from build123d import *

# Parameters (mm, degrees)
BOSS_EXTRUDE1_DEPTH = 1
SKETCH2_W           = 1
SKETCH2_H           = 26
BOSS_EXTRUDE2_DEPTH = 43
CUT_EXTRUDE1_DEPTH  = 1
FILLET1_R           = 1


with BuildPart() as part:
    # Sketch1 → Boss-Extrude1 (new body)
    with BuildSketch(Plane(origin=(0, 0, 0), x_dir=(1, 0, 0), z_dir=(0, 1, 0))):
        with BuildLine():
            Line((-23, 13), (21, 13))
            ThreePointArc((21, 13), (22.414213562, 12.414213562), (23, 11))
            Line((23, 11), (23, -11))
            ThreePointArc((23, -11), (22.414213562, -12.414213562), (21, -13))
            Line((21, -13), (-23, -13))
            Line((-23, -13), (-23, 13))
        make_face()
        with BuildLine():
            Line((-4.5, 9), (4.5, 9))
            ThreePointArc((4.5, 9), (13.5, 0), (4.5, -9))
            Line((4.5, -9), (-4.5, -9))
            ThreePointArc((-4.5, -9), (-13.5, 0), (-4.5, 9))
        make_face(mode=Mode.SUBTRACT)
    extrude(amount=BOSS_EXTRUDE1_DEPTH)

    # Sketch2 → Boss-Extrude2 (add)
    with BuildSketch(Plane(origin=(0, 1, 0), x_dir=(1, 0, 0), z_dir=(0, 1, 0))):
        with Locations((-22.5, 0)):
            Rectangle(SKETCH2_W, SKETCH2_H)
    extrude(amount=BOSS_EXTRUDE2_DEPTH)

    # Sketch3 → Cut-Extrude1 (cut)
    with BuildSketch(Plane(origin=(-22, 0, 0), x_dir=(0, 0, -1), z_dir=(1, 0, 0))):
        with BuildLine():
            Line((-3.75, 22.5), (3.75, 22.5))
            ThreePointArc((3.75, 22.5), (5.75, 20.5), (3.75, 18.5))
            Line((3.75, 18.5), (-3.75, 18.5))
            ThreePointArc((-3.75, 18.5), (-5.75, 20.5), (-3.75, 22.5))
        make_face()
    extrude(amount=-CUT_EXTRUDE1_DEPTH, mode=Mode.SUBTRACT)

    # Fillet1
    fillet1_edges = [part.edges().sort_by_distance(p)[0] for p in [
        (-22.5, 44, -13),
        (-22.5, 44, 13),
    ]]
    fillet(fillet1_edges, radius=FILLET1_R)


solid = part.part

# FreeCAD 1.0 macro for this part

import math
import FreeCAD as App
import Part
import Sketcher

V = App.Vector
Q = App.Units.Quantity


def edges_at(feature, points):
    """Names of the edges that pass closest to the given points."""
    edges = feature.Shape.Edges
    near = lambda p: min(range(len(edges)), key=lambda i: edges[i].distToShape(Part.Vertex(*p))[0])
    return sorted({f"Edge{near(p) + 1}" for p in points})


def add_polygon(sketch, points):
    """Adds a closed chain of lines whose ends are joined by coincident constraints."""
    first, n = sketch.GeometryCount, len(points)
    for a, b in zip(points, points[1:] + points[:1]):
        sketch.addGeometry(Part.LineSegment(App.Vector(*a, 0), App.Vector(*b, 0)), False)
    for i in range(n):
        sketch.addConstraint(Sketcher.Constraint("Coincident", first + i, 2, first + (i + 1) % n, 1))

doc = App.newDocument("Part")
body = doc.addObject("PartDesign::Body", "Body")

# Sketch on XZ plane
sketch1 = body.newObject("Sketcher::SketchObject", "Sketch")
sketch1.AttachmentSupport = (doc.getObject("XZ_Plane"), [""])
sketch1.MapMode = "FlatFace"
sketch1.addGeometry([
    Part.LineSegment(V(21, -13, 0), V(-23, -13, 0)),  # 0
    Part.LineSegment(V(-23, -13, 0), V(-23, 13, 0)),  # 1
    Part.LineSegment(V(-23, 13, 0), V(21, 13, 0)),  # 2
    Part.ArcOfCircle(Part.Circle(V(21, 11, 0), V(0, 0, 1), 2), math.radians(0), math.radians(90)),  # 3
    Part.LineSegment(V(23, 11, 0), V(23, -11, 0)),  # 4
    Part.ArcOfCircle(Part.Circle(V(21, -11, 0), V(0, 0, 1), 2), math.radians(-90), math.radians(0)),  # 5
    Part.LineSegment(V(-4.5, -9, 0), V(4.5, -9, 0)),  # 6
    Part.ArcOfCircle(Part.Circle(V(4.5, 0, 0), V(0, 0, 1), 9), math.radians(-90), math.radians(90)),  # 7
    Part.LineSegment(V(4.5, 9, 0), V(-4.5, 9, 0)),  # 8
    Part.ArcOfCircle(Part.Circle(V(-4.5, 0, 0), V(0, 0, 1), 9), math.radians(90), math.radians(270)),  # 9
], False)
sketch1.addConstraint([
    Sketcher.Constraint("Coincident", 0, 2, 1, 1),
    Sketcher.Constraint("Coincident", 1, 2, 2, 1),
    Sketcher.Constraint("Tangent", 2, 2, 3, 2),
    Sketcher.Constraint("Tangent", 3, 1, 4, 1),
    Sketcher.Constraint("Tangent", 4, 2, 5, 2),
    Sketcher.Constraint("Tangent", 5, 1, 0, 1),
    Sketcher.Constraint("Tangent", 6, 2, 7, 1),
    Sketcher.Constraint("Tangent", 7, 2, 8, 1),
    Sketcher.Constraint("Tangent", 8, 2, 9, 1),
    Sketcher.Constraint("Tangent", 9, 2, 6, 1),
    Sketcher.Constraint("Horizontal", 0),
    Sketcher.Constraint("Vertical", 1),
    Sketcher.Constraint("Horizontal", 2),
    Sketcher.Constraint("Vertical", 4),
    Sketcher.Constraint("Horizontal", 6),
    Sketcher.Constraint("Horizontal", 8),
    Sketcher.Constraint("Equal", 3, 5),
    Sketcher.Constraint("Symmetric", 7, 3, 9, 3, -1, 1),
    Sketcher.Constraint("Radius", 3, Q("2 mm")),
    Sketcher.Constraint("Radius", 7, Q("9 mm")),
    Sketcher.Constraint("DistanceX", 0, 2, 0, 1, Q("44 mm")),
    Sketcher.Constraint("DistanceX", 6, 1, 6, 2, Q("9 mm")),
    Sketcher.Constraint("DistanceY", 1, 1, 1, 2, Q("26 mm")),
    Sketcher.Constraint("DistanceX", -1, 1, 3, 3, Q("21 mm")),
    Sketcher.Constraint("DistanceY", -1, 1, 3, 3, Q("11 mm")),
])
pad1 = body.newObject("PartDesign::Pad", "Pad")
pad1.Profile = sketch1
pad1.Length = 1
pad1.Reversed = True

# Sketch on XZ plane
sketch2 = body.newObject("Sketcher::SketchObject", "Sketch001")
sketch2.AttachmentSupport = (doc.getObject("XZ_Plane"), [""])
sketch2.MapMode = "FlatFace"
sketch2.AttachmentOffset = App.Placement(V(0, 0, -1), App.Rotation())
add_polygon(sketch2, [(-23, -13), (-23, 13), (-22, 13), (-22, -13)])  # lines 0-3
sketch2.addConstraint([
    Sketcher.Constraint("Vertical", 0),
    Sketcher.Constraint("Horizontal", 1),
    Sketcher.Constraint("Vertical", 2),
    Sketcher.Constraint("Horizontal", 3),
    Sketcher.Constraint("DistanceX", 1, 1, 1, 2, Q("1 mm")),
    Sketcher.Constraint("DistanceY", 0, 1, 0, 2, Q("26 mm")),
    Sketcher.Constraint("DistanceX", 0, 2, -1, 1, Q("23 mm")),
    Sketcher.Constraint("DistanceY", -1, 1, 0, 2, Q("13 mm")),
])
pad2 = body.newObject("PartDesign::Pad", "Pad001")
pad2.Profile = sketch2
pad2.Length = 43
pad2.Reversed = True

# Sketch on YZ plane
sketch3 = body.newObject("Sketcher::SketchObject", "Sketch002")
sketch3.AttachmentSupport = (doc.getObject("YZ_Plane"), [""])
sketch3.MapMode = "FlatFace"
sketch3.AttachmentOffset = App.Placement(V(0, 0, -22), App.Rotation())
sketch3.addGeometry([
    Part.LineSegment(V(22.5, -3.8, 0), V(22.5, 3.8, 0)),
    Part.ArcOfCircle(Part.Circle(V(20.5, 3.8, 0), V(0, 0, 1), 2), math.radians(0), math.radians(180)),
    Part.LineSegment(V(18.5, 3.8, 0), V(18.5, -3.8, 0)),
    Part.ArcOfCircle(Part.Circle(V(20.5, -3.8, 0), V(0, 0, 1), 2), math.radians(180), math.radians(360)),
], False)
sketch3.addConstraint([
    Sketcher.Constraint("Tangent", 0, 2, 1, 1),
    Sketcher.Constraint("Tangent", 1, 2, 2, 1),
    Sketcher.Constraint("Tangent", 2, 2, 3, 1),
    Sketcher.Constraint("Tangent", 3, 2, 0, 1),
    Sketcher.Constraint("Vertical", 0),
    Sketcher.Constraint("Vertical", 2),
    Sketcher.Constraint("Radius", 1, Q("2 mm")),
    Sketcher.Constraint("DistanceY", 0, 1, 0, 2, Q("7.5 mm")),
    Sketcher.Constraint("DistanceX", -1, 1, 1, 3, Q("20.5 mm")),
    Sketcher.Constraint("DistanceY", -1, 1, 1, 3, Q("3.75 mm")),
])
pocket1 = body.newObject("PartDesign::Pocket", "Pocket")
pocket1.Profile = sketch3
pocket1.Length = 1
doc.recompute()

fillet = body.newObject("PartDesign::Fillet", "Fillet")
fillet.Base = (pocket1, edges_at(pocket1, [(-22.5, 44, -13), (-22.5, 44, 13)]))
fillet.Radius = 1

doc.recompute()
